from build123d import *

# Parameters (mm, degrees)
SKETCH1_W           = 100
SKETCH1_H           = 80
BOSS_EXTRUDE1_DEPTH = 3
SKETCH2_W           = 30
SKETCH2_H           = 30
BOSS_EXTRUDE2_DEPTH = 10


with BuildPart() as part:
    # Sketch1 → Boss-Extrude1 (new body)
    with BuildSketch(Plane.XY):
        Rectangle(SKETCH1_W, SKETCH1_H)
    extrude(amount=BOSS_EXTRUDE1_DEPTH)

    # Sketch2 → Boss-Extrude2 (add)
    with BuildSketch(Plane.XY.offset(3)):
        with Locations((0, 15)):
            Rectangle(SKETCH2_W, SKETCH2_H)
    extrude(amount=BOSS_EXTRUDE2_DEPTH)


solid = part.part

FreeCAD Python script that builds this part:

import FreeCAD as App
import Part
import Sketcher


def add_polygon(sketch, points):
    """Adds a closed chain of lines whose ends are joined by coincident constraints."""
    first, n = sketch.GeometryCount, len(points)
    for a, b in zip(points, points[1:] + points[:1]):
        sketch.addGeometry(Part.LineSegment(App.Vector(*a, 0), App.Vector(*b, 0)), False)
    for i in range(n):
        sketch.addConstraint(Sketcher.Constraint("Coincident", first + i, 2, first + (i + 1) % n, 1))

doc = App.newDocument("Part")
body = doc.addObject("PartDesign::Body", "Body")

# Sketch on XY plane
sketch1 = body.newObject("Sketcher::SketchObject", "Sketch")
sketch1.AttachmentSupport = (doc.getObject("XY_Plane"), [""])
sketch1.MapMode = "FlatFace"
add_polygon(sketch1, [(-50, 40), (-50, -40), (50, -40), (50, 40)])  # lines 0-3
sketch1.addConstraint([
    Sketcher.Constraint("Vertical", 0),
    Sketcher.Constraint("Horizontal", 1),
    Sketcher.Constraint("Vertical", 2),
    Sketcher.Constraint("Horizontal", 3),
    Sketcher.Constraint("Symmetric", 0, 2, 2, 2, -1, 1),
    Sketcher.Constraint("DistanceX", 1, 1, 1, 2, 100.0),
    Sketcher.Constraint("DistanceY", 0, 2, 0, 1, 80.0),
])
pad1 = body.newObject("PartDesign::Pad", "Pad")
pad1.Profile = sketch1
pad1.Length = 3

# Sketch on XY plane
sketch2 = body.newObject("Sketcher::SketchObject", "Sketch001")
sketch2.AttachmentSupport = (doc.getObject("XY_Plane"), [""])
sketch2.MapMode = "FlatFace"
sketch2.AttachmentOffset = App.Placement(App.Vector(0, 0, 3), App.Rotation())
add_polygon(sketch2, [(-15, 30), (-15, 0), (15, 0), (15, 30)])  # lines 0-3
sketch2.addConstraint([
    Sketcher.Constraint("Vertical", 0),
    Sketcher.Constraint("Horizontal", 1),
    Sketcher.Constraint("Vertical", 2),
    Sketcher.Constraint("Horizontal", 3),
    Sketcher.Constraint("Symmetric", 0, 2, 1, 2, -1, 1),
    Sketcher.Constraint("Equal", 3, 0),
    Sketcher.Constraint("DistanceX", 1, 1, 1, 2, 30.0),
])
pad2 = body.newObject("PartDesign::Pad", "Pad001")
pad2.Profile = sketch2
pad2.Length = 10

doc.recompute()
